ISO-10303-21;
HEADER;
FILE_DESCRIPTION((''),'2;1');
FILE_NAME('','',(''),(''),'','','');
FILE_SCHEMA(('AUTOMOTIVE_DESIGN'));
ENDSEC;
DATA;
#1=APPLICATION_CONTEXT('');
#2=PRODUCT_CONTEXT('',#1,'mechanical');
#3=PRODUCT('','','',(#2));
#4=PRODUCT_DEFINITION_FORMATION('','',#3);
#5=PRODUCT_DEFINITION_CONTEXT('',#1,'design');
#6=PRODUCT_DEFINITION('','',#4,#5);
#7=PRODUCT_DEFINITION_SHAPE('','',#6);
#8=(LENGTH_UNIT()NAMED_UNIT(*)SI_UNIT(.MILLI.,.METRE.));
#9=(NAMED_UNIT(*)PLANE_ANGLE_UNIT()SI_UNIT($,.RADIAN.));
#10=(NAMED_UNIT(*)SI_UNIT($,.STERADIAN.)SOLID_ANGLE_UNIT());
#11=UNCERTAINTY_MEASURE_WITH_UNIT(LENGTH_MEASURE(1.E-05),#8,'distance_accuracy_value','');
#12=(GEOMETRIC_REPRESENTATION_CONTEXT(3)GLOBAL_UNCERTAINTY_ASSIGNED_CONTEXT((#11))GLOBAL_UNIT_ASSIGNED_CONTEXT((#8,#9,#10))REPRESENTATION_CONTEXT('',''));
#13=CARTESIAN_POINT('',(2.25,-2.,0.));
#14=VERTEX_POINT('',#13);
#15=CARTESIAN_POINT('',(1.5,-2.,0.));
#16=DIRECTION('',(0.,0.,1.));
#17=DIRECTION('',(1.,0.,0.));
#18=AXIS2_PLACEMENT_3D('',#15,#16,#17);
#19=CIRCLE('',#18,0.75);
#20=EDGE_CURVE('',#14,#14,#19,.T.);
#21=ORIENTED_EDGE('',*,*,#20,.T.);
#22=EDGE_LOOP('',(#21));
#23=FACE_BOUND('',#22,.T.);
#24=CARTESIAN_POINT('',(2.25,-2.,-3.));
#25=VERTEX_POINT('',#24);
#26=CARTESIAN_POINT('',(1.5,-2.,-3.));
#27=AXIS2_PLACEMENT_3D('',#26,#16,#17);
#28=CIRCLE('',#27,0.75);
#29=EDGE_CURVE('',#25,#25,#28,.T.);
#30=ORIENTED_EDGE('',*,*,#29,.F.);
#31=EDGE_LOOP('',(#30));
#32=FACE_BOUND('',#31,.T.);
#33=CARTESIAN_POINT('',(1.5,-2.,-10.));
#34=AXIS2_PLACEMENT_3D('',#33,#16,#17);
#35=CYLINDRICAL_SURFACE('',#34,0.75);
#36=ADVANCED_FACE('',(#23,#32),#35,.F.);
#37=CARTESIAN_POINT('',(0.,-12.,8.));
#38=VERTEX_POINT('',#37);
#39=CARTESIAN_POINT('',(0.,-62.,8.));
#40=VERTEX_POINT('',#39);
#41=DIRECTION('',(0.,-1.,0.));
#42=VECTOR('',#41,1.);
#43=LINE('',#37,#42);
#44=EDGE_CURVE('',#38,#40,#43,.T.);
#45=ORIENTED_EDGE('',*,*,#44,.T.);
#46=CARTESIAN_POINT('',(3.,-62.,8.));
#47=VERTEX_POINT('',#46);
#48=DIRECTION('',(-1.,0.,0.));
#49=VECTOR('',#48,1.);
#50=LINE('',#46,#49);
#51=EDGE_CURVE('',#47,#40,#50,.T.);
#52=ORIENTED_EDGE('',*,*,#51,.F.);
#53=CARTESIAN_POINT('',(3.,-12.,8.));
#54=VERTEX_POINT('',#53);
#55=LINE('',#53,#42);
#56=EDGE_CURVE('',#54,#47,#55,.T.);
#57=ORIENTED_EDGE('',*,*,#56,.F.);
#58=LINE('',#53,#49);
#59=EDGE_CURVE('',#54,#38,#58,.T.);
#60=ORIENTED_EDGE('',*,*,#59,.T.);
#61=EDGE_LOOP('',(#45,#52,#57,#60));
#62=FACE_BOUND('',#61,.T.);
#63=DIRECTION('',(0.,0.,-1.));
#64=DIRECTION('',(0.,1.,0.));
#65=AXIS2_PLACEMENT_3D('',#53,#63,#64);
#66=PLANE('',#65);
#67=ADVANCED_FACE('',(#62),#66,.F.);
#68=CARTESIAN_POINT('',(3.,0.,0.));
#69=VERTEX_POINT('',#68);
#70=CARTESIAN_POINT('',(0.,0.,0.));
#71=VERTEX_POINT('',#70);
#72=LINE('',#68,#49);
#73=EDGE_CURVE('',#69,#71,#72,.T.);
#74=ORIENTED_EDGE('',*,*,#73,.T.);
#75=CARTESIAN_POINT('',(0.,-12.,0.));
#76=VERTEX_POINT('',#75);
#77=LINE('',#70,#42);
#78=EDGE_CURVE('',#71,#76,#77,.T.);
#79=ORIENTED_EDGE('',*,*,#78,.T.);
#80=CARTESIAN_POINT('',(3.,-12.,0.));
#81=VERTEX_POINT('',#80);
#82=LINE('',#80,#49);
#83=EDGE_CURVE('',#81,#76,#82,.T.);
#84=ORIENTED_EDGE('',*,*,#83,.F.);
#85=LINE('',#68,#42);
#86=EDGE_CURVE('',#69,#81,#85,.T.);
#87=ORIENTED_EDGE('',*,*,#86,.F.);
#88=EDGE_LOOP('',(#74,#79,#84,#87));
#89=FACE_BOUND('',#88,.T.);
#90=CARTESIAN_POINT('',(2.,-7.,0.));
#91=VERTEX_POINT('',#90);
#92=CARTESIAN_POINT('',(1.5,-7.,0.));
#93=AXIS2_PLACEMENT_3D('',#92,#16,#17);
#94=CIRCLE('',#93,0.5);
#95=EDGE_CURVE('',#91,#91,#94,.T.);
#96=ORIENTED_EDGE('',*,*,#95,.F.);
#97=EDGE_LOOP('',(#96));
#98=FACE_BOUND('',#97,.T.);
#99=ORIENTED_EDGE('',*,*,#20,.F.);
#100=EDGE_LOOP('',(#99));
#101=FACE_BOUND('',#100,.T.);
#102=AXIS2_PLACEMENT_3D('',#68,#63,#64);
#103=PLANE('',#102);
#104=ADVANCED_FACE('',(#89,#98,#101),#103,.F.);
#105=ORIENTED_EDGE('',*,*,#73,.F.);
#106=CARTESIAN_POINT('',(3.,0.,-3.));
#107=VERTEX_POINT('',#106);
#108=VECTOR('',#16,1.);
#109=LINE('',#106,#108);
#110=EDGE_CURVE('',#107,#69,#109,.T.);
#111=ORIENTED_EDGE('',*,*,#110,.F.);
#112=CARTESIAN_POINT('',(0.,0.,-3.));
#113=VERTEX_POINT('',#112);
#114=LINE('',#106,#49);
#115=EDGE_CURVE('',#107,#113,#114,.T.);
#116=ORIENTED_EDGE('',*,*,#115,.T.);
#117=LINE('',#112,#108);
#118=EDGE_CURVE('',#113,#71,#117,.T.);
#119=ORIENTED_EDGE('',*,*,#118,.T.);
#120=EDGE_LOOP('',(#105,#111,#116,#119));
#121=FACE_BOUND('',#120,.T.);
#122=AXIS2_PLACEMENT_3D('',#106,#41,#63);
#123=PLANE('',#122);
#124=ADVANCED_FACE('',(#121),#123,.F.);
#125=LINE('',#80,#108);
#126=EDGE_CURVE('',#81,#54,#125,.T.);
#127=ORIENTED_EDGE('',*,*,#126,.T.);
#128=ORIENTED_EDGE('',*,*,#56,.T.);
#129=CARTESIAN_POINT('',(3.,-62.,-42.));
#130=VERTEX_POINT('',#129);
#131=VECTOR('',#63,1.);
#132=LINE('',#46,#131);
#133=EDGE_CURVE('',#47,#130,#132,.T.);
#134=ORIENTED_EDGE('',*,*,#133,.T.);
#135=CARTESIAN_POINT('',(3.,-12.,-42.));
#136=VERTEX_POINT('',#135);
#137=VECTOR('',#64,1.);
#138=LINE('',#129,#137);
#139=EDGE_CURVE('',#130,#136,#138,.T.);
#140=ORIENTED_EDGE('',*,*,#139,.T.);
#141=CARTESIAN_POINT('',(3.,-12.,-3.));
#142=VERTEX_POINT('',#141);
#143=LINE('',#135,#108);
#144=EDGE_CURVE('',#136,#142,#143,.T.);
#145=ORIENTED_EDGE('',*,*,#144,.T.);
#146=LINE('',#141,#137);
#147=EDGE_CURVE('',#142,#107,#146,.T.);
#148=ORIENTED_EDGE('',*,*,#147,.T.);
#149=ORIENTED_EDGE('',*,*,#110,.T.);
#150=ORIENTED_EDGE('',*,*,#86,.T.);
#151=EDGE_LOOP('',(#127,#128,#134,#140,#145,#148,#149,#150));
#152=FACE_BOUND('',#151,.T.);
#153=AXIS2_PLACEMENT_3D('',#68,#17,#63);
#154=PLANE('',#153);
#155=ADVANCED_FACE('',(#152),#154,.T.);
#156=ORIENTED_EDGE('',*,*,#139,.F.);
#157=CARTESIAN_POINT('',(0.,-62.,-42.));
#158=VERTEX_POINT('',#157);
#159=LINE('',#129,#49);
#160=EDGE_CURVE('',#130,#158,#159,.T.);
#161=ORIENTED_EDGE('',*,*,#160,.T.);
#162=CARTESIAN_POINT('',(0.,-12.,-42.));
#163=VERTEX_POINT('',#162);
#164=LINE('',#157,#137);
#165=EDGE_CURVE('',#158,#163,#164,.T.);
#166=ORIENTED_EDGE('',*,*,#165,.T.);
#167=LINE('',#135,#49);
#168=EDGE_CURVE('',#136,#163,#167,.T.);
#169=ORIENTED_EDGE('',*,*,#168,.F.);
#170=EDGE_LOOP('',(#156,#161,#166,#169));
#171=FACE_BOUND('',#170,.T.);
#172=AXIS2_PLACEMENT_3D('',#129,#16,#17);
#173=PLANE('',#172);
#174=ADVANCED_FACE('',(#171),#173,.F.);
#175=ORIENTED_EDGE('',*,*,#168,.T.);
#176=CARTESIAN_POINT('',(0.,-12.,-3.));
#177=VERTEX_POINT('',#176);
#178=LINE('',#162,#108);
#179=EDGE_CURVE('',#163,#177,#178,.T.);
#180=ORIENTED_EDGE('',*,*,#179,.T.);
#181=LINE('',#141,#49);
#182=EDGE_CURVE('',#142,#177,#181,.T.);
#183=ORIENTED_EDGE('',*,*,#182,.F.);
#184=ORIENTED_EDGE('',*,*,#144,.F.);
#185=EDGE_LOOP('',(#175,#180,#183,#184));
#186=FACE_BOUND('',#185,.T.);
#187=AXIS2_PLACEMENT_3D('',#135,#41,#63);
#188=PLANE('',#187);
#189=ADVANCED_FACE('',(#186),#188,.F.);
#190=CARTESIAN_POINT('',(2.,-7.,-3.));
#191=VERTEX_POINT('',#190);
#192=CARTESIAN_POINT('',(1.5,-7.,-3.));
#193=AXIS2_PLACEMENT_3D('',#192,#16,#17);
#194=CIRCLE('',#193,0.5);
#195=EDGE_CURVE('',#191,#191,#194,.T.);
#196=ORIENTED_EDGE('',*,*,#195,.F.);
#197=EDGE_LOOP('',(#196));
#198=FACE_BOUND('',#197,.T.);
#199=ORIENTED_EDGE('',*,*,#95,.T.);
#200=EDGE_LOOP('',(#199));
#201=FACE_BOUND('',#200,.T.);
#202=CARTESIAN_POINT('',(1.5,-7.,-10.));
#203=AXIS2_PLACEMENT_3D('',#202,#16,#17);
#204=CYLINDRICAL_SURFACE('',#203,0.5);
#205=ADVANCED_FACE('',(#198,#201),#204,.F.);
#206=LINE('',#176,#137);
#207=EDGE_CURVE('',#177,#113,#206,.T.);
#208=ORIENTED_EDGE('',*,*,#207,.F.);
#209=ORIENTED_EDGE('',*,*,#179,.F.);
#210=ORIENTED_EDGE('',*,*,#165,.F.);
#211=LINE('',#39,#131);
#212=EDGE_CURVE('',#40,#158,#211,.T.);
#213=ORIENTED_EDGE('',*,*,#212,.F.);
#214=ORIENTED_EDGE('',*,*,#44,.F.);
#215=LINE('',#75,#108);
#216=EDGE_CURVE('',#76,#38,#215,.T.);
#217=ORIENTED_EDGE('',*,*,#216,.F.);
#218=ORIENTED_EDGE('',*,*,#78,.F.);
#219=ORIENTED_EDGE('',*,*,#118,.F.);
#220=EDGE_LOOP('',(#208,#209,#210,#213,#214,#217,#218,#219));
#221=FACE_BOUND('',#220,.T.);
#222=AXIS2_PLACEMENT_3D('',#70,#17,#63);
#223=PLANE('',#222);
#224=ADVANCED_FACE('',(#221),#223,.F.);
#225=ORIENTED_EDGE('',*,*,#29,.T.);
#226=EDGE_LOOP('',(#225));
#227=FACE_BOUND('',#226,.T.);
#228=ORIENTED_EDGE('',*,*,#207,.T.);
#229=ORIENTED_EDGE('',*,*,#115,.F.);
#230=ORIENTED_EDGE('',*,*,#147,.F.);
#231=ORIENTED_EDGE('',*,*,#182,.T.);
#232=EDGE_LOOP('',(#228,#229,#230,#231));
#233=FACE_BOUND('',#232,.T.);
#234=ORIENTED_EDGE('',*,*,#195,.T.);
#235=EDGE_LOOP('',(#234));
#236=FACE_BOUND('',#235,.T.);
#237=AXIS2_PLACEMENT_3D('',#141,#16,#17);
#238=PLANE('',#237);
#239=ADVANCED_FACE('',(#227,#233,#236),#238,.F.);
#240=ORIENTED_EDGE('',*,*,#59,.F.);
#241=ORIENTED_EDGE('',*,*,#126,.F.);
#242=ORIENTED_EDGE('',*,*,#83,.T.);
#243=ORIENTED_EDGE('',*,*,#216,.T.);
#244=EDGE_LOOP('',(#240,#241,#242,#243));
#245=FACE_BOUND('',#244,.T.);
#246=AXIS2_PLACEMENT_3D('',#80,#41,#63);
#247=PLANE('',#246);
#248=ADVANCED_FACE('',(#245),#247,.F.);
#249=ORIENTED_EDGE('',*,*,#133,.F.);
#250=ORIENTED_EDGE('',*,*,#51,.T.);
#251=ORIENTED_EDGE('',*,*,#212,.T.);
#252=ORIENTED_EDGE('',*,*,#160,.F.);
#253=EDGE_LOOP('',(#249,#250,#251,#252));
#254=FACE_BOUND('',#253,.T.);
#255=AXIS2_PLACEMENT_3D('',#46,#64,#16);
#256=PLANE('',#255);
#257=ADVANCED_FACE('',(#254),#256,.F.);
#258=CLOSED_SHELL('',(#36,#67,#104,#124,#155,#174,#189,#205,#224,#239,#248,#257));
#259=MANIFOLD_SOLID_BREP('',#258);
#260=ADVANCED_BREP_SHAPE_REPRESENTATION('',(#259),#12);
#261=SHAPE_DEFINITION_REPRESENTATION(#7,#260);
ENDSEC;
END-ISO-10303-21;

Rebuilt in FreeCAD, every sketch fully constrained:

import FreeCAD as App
import Part
import Sketcher
from FreeCAD import Vector

doc = App.newDocument("Part")
body = doc.addObject("PartDesign::Body", "Body")

sketch1 = body.newObject("Sketcher::SketchObject", "Sketch")
sketch1.AttachmentSupport = (doc.getObject("YZ_Plane"), [""])
sketch1.MapMode = "FlatFace"
sketch1.addGeometry(Part.LineSegment(Vector(0, 0, 0), Vector(-12, 0, 0)), False)
sketch1.addGeometry(Part.LineSegment(Vector(-12, 0, 0), Vector(-12, 8, 0)), False)
sketch1.addGeometry(Part.LineSegment(Vector(-12, 8, 0), Vector(-62, 8, 0)), False)
sketch1.addGeometry(Part.LineSegment(Vector(-62, 8, 0), Vector(-62, -42, 0)), False)
sketch1.addGeometry(Part.LineSegment(Vector(-62, -42, 0), Vector(-12, -42, 0)), False)
sketch1.addGeometry(Part.LineSegment(Vector(-12, -42, 0), Vector(-12, -3, 0)), False)
sketch1.addGeometry(Part.LineSegment(Vector(-12, -3, 0), Vector(0, -3, 0)), False)
sketch1.addGeometry(Part.LineSegment(Vector(0, -3, 0), Vector(0, 0, 0)), False)
sketch1.addConstraint(Sketcher.Constraint("Coincident", 0, 2, 1, 1))
sketch1.addConstraint(Sketcher.Constraint("Coincident", 1, 2, 2, 1))
sketch1.addConstraint(Sketcher.Constraint("Coincident", 2, 2, 3, 1))
sketch1.addConstraint(Sketcher.Constraint("Coincident", 3, 2, 4, 1))
sketch1.addConstraint(Sketcher.Constraint("Coincident", 4, 2, 5, 1))
sketch1.addConstraint(Sketcher.Constraint("Coincident", 5, 2, 6, 1))
sketch1.addConstraint(Sketcher.Constraint("Coincident", 6, 2, 7, 1))
sketch1.addConstraint(Sketcher.Constraint("Coincident", 7, 2, 0, 1))
sketch1.addConstraint(Sketcher.Constraint("Horizontal", 0))
sketch1.addConstraint(Sketcher.Constraint("Vertical", 1))
sketch1.addConstraint(Sketcher.Constraint("Horizontal", 2))
sketch1.addConstraint(Sketcher.Constraint("Vertical", 3))
sketch1.addConstraint(Sketcher.Constraint("Horizontal", 4))
sketch1.addConstraint(Sketcher.Constraint("Vertical", 5))
sketch1.addConstraint(Sketcher.Constraint("Horizontal", 6))
sketch1.addConstraint(Sketcher.Constraint("Vertical", 7))
sketch1.addConstraint(Sketcher.Constraint("Coincident", 7, 2, -1, 1))
sketch1.addConstraint(Sketcher.Constraint("Vertical", 1, 2, 4, 2))
sketch1.addConstraint(Sketcher.Constraint("Equal", 4, 3))
sketch1.addConstraint(Sketcher.Constraint("DistanceX", 0, 2, 0, 1, 12.0))
sketch1.addConstraint(Sketcher.Constraint("DistanceX", 2, 2, 2, 1, 50.0))
sketch1.addConstraint(Sketcher.Constraint("DistanceY", 1, 1, 1, 2, 8.0))
sketch1.addConstraint(Sketcher.Constraint("DistanceY", 5, 1, 5, 2, 39.0))
pad1 = body.newObject("PartDesign::Pad", "Pad")
pad1.Profile = sketch1
pad1.Length = 3

sketch2 = body.newObject("Sketcher::SketchObject", "Sketch001")
sketch2.AttachmentSupport = (doc.getObject("XY_Plane"), [""])
sketch2.MapMode = "FlatFace"
sketch2.addGeometry(Part.Circle(Vector(1.5, -2, 0), Vector(0, 0, 1), 0.75), False)
sketch2.addGeometry(Part.Circle(Vector(1.5, -7, 0), Vector(0, 0, 1), 0.5), False)
sketch2.addConstraint(Sketcher.Constraint("Vertical", 0, 3, 1, 3))
sketch2.addConstraint(Sketcher.Constraint("Diameter", 1, 1.0))
sketch2.addConstraint(Sketcher.Constraint("Diameter", 0, 1.5))
sketch2.addConstraint(Sketcher.Constraint("DistanceY", 0, 3, -1, 1, 2.0))
sketch2.addConstraint(Sketcher.Constraint("DistanceY", 1, 3, -1, 1, 7.0))
sketch2.addConstraint(Sketcher.Constraint("DistanceX", -1, 1, 0, 3, 1.5))
pocket1 = body.newObject("PartDesign::Pocket", "Pocket")
pocket1.Profile = sketch2
pocket1.Length = 10

doc.recompute()
